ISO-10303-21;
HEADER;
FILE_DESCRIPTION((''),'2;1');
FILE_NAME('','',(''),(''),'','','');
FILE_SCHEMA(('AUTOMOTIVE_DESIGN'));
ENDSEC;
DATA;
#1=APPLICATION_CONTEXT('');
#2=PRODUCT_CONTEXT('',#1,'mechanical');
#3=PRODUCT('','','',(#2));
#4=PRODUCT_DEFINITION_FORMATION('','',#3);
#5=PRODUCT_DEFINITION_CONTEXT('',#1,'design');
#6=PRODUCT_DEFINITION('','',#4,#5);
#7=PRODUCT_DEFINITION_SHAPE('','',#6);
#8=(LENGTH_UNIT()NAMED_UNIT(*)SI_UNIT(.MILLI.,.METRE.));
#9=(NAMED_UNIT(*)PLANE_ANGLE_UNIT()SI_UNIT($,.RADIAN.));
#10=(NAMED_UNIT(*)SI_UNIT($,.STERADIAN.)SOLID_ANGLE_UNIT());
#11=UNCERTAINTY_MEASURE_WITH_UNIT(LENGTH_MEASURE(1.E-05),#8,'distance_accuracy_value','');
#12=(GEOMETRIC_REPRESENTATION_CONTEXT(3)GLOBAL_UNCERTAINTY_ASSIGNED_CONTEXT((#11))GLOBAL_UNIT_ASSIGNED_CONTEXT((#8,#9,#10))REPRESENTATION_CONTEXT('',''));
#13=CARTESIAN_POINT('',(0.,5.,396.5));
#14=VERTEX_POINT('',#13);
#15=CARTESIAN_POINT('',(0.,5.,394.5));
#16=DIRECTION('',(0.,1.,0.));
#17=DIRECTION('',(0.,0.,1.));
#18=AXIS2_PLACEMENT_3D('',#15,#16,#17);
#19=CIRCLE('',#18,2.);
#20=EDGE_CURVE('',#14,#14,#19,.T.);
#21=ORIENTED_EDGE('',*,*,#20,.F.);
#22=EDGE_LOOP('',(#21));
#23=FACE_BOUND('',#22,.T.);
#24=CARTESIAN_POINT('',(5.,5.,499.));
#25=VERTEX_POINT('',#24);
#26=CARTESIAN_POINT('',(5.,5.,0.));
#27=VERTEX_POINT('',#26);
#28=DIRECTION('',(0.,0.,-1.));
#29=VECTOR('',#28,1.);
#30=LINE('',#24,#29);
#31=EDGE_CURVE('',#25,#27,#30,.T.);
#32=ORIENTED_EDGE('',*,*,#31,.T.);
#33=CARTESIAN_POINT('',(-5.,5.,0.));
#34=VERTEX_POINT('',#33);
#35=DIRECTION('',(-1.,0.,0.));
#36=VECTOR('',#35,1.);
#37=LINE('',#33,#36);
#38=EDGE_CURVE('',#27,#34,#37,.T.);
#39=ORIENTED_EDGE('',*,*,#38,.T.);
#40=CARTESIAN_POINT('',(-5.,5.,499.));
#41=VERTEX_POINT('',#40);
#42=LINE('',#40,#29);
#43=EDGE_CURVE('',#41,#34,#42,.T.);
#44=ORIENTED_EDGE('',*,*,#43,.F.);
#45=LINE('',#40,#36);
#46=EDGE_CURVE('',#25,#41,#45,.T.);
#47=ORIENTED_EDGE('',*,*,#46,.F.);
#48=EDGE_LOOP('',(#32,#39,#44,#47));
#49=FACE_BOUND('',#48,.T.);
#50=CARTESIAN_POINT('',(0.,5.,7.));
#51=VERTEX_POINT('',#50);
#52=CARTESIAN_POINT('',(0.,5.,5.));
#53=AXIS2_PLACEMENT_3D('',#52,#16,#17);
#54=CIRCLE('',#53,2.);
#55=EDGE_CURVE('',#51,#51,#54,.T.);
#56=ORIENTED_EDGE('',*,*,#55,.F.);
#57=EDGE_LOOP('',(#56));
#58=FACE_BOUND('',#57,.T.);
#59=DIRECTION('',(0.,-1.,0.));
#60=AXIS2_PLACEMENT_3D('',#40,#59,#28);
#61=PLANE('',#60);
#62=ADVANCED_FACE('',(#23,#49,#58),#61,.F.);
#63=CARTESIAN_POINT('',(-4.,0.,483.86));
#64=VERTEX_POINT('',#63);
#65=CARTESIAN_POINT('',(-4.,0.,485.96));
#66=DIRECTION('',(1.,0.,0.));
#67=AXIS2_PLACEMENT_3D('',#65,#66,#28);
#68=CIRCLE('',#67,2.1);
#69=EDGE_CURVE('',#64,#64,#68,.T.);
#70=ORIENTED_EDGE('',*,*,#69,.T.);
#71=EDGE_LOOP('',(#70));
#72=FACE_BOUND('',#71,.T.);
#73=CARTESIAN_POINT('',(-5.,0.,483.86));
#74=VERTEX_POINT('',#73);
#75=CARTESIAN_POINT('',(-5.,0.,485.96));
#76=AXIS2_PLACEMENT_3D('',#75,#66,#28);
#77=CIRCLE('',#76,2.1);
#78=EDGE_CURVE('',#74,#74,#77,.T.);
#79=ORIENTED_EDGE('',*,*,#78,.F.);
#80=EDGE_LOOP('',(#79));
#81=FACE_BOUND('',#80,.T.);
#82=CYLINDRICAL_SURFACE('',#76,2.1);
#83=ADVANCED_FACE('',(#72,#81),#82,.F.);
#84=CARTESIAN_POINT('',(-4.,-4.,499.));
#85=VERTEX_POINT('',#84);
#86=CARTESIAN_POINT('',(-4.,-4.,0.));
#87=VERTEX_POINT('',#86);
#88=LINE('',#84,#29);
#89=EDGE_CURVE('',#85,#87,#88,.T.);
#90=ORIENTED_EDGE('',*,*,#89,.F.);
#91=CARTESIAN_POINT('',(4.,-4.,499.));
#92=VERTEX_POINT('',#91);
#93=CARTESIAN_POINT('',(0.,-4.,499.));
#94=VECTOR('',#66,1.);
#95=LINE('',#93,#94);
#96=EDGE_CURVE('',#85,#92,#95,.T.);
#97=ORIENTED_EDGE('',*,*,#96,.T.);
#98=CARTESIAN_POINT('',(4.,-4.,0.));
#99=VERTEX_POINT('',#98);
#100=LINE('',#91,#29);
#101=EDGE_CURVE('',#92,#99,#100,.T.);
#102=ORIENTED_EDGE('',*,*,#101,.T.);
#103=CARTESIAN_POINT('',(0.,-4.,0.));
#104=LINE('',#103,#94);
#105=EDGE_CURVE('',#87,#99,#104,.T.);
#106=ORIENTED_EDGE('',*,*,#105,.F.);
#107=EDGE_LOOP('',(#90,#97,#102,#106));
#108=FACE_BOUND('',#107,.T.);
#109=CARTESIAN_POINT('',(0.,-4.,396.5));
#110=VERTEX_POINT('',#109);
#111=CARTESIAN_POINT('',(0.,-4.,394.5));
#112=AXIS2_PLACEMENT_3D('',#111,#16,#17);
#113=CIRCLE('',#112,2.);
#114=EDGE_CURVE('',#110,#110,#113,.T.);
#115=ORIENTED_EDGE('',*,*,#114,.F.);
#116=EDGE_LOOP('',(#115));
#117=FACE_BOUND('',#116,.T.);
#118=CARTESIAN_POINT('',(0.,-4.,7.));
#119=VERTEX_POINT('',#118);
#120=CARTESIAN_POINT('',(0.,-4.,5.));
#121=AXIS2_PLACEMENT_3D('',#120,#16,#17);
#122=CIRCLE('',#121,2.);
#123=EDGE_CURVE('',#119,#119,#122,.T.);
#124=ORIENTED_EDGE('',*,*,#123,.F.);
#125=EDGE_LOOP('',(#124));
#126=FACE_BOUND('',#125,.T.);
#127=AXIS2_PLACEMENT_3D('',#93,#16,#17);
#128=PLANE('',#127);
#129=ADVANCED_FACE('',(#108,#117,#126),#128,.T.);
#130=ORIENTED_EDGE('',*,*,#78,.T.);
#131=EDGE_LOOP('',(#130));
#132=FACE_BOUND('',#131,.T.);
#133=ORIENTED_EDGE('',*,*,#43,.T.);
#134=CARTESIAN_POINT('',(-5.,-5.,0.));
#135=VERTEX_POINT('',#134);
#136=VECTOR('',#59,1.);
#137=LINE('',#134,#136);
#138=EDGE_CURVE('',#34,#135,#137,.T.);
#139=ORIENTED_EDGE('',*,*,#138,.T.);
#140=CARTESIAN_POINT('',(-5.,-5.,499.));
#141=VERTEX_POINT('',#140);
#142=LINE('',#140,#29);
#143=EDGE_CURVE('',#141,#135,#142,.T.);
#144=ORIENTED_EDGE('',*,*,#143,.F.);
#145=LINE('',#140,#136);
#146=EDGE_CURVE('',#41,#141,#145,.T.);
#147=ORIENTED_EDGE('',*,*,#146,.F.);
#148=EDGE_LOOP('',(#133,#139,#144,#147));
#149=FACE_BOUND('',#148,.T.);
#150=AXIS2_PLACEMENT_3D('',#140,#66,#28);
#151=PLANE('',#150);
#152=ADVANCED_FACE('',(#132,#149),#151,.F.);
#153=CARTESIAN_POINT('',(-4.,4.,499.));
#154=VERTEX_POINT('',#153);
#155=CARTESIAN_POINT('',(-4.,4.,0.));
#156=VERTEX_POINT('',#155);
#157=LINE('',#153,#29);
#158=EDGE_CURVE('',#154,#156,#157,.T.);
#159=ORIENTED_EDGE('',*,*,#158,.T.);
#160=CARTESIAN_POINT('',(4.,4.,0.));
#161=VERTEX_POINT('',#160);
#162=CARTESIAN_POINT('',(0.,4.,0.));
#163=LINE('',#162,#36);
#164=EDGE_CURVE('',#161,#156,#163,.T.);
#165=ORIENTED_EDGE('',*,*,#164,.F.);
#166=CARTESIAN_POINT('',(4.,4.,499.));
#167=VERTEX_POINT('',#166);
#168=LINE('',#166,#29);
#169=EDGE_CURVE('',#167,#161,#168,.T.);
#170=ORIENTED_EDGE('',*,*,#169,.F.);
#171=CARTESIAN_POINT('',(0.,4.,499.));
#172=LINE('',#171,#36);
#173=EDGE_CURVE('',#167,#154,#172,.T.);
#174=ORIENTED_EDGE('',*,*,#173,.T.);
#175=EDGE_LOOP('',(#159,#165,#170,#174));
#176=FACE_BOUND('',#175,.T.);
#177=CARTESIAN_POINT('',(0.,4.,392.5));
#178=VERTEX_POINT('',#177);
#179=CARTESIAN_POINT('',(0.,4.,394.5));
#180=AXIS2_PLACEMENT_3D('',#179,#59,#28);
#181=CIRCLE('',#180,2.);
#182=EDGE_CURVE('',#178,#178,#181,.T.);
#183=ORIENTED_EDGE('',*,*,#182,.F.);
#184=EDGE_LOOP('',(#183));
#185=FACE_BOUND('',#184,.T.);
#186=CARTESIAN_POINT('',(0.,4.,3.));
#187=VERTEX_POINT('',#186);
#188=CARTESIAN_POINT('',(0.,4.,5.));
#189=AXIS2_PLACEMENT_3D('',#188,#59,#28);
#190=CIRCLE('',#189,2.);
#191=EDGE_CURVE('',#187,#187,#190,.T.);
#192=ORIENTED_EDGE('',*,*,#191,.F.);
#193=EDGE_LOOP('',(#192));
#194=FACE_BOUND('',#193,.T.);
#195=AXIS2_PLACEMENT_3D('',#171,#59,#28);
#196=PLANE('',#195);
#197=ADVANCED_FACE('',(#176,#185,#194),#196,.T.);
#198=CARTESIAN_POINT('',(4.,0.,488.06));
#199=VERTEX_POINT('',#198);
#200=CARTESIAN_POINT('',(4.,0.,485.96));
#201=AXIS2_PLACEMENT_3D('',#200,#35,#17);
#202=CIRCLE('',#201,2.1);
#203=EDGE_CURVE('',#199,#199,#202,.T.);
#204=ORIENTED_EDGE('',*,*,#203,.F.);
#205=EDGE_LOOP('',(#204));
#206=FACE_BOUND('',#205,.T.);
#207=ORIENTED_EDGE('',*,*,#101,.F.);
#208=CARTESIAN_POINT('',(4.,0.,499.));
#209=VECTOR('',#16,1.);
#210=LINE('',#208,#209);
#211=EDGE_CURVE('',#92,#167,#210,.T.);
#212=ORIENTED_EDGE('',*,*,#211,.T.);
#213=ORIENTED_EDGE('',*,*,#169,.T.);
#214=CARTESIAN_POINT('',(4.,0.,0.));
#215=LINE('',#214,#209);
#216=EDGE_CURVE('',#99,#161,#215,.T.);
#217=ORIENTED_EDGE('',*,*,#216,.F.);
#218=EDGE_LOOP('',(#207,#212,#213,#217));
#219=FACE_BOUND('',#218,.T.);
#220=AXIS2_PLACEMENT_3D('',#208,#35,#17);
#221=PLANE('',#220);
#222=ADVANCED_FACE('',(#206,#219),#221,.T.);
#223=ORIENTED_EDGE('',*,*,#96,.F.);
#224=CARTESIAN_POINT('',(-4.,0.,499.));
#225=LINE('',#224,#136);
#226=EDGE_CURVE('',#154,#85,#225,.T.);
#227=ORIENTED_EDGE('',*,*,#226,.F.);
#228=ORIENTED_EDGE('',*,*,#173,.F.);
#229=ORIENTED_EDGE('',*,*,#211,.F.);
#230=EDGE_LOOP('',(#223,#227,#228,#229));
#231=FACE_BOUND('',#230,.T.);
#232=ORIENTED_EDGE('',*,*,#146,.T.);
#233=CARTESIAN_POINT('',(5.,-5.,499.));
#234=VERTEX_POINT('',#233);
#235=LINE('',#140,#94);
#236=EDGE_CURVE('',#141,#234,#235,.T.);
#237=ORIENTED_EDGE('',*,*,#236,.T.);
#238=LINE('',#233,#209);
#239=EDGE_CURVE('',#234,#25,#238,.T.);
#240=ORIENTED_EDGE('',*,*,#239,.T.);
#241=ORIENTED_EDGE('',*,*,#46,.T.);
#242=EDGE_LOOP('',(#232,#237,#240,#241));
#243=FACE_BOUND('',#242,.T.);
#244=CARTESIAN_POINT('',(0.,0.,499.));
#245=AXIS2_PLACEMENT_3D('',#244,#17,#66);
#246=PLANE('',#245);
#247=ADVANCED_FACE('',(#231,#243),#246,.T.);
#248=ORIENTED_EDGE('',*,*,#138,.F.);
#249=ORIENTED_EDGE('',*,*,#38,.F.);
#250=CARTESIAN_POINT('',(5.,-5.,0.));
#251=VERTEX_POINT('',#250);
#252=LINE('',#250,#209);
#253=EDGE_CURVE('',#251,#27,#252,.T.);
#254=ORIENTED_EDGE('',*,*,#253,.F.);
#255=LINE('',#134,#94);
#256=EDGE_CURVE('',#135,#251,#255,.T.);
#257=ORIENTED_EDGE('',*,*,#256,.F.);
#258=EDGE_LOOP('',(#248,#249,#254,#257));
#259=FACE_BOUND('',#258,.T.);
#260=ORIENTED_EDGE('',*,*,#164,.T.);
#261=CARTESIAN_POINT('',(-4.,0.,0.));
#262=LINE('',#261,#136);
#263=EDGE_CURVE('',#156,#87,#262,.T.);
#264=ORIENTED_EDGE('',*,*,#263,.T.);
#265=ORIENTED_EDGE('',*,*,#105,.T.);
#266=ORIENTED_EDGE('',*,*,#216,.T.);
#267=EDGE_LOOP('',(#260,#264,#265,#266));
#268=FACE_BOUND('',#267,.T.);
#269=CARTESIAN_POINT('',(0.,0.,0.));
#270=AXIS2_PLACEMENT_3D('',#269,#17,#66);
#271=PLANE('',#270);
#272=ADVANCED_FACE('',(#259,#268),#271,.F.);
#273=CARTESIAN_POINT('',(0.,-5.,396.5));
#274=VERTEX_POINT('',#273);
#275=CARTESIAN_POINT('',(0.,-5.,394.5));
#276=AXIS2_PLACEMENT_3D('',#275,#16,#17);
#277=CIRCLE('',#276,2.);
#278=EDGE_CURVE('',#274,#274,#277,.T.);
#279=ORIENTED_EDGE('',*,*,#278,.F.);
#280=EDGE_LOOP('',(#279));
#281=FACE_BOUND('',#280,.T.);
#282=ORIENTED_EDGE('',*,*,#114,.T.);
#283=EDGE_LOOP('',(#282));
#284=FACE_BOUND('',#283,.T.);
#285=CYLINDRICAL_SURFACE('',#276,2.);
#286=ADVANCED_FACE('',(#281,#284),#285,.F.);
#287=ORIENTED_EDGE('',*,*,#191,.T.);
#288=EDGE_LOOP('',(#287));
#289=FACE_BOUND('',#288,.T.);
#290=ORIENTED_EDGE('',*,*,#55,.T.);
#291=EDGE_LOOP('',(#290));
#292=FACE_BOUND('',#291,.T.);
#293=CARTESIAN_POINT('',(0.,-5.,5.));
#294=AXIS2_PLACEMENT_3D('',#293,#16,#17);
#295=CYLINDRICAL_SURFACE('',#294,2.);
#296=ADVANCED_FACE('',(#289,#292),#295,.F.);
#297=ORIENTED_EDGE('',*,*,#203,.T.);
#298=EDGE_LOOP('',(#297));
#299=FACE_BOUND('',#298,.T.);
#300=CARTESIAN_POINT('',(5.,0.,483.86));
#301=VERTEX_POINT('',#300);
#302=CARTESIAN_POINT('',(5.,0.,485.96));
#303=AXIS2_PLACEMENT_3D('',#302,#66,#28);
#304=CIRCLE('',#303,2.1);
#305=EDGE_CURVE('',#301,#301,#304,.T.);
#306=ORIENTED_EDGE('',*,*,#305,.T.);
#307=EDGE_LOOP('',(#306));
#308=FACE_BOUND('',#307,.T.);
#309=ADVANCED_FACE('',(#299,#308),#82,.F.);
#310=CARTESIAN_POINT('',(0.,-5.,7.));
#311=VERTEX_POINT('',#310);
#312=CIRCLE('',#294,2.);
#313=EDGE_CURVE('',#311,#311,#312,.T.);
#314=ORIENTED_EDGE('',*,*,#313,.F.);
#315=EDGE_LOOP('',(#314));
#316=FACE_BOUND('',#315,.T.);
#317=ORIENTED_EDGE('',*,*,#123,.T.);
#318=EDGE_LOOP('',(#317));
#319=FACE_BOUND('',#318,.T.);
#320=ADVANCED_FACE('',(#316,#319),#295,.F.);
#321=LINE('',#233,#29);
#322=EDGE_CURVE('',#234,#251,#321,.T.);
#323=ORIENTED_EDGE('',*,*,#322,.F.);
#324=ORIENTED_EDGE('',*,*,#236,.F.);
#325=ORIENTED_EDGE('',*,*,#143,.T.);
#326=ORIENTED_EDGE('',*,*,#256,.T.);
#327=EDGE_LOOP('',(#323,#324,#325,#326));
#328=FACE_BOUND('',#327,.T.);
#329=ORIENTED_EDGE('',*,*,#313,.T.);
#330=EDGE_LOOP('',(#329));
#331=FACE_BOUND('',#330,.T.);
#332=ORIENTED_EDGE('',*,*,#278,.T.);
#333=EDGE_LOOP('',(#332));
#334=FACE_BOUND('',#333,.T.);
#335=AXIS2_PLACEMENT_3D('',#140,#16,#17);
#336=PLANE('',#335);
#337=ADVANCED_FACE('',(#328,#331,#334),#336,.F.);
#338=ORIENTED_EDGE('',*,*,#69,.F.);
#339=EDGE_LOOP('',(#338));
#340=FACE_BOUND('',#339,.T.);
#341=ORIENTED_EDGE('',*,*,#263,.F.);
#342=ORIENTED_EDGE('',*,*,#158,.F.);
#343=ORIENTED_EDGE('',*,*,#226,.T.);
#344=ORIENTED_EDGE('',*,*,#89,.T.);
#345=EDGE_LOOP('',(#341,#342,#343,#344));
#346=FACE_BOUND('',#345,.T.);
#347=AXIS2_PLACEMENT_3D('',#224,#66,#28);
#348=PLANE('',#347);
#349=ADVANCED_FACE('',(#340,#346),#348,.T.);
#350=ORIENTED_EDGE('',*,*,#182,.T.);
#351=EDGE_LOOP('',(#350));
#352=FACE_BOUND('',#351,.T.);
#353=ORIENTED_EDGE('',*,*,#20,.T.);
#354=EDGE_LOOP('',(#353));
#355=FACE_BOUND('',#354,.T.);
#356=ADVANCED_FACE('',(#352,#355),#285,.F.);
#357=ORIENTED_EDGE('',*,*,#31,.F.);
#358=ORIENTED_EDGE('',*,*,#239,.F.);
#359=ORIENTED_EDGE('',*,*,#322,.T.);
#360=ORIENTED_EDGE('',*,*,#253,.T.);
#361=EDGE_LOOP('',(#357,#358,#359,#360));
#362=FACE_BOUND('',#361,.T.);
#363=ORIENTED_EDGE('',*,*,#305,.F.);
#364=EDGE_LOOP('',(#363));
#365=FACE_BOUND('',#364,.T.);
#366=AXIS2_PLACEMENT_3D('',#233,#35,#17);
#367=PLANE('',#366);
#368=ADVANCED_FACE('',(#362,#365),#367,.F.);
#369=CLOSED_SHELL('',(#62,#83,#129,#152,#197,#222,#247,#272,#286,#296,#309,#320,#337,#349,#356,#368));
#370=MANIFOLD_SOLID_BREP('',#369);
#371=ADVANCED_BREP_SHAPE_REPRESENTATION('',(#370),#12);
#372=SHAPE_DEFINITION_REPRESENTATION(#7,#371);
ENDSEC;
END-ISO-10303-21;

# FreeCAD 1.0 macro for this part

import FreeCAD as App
import Part
import Sketcher
Q = App.Units.Quantity


def add_polygon(sketch, points):
    """Adds a closed chain of lines whose ends are joined by coincident constraints."""
    first, n = sketch.GeometryCount, len(points)
    for a, b in zip(points, points[1:] + points[:1]):
        sketch.addGeometry(Part.LineSegment(App.Vector(*a, 0), App.Vector(*b, 0)), False)
    for i in range(n):
        sketch.addConstraint(Sketcher.Constraint("Coincident", first + i, 2, first + (i + 1) % n, 1))

doc = App.newDocument("Part")
body = doc.addObject("PartDesign::Body", "Body")

# Sketch on XY plane
sketch1 = doc.addObject("Sketcher::SketchObject", "Sketch")
body.addObject(sketch1)
sketch1.AttachmentSupport = (doc.XY_Plane, [""])
sketch1.MapMode = "FlatFace"
add_polygon(sketch1, [(-5, 5), (-5, -5), (5, -5), (5, 5)])  # lines 0-3
add_polygon(sketch1, [(4, -4), (-4, -4), (-4, 4), (4, 4)])  # lines 4-7
sketch1.addConstraint(Sketcher.Constraint("Vertical", 0))
sketch1.addConstraint(Sketcher.Constraint("Horizontal", 1))
sketch1.addConstraint(Sketcher.Constraint("Vertical", 2))
sketch1.addConstraint(Sketcher.Constraint("Horizontal", 3))
sketch1.addConstraint(Sketcher.Constraint("Horizontal", 4))
sketch1.addConstraint(Sketcher.Constraint("Vertical", 5))
sketch1.addConstraint(Sketcher.Constraint("Horizontal", 6))
sketch1.addConstraint(Sketcher.Constraint("Vertical", 7))
sketch1.addConstraint(Sketcher.Constraint("Symmetric", 0, 2, 2, 2, -1, 1))
sketch1.addConstraint(Sketcher.Constraint("Symmetric", 4, 2, 6, 2, -1, 1))
sketch1.addConstraint(Sketcher.Constraint("Equal", 3, 0))
sketch1.addConstraint(Sketcher.Constraint("Equal", 6, 5))
sketch1.addConstraint(Sketcher.Constraint("DistanceX", 1, 1, 1, 2, Q("10 mm")))
sketch1.addConstraint(Sketcher.Constraint("DistanceX", 4, 2, 4, 1, Q("8 mm")))
pad1 = doc.addObject("PartDesign::Pad", "Pad")
body.addObject(pad1)
pad1.Profile = sketch1
pad1.Length = 499

# Sketch on XZ plane
sketch2 = doc.addObject("Sketcher::SketchObject", "Sketch001")
body.addObject(sketch2)
sketch2.AttachmentSupport = (doc.XZ_Plane, [""])
sketch2.MapMode = "FlatFace"
sketch2.AttachmentOffset = App.Placement(App.Vector(0, 0, -5), App.Rotation())
sketch2.addGeometry(Part.Circle(App.Vector(0, 5, 0), App.Vector(0, 0, 1), 2), False)
sketch2.addGeometry(Part.Circle(App.Vector(0, 394.5, 0), App.Vector(0, 0, 1), 2), False)
sketch2.addConstraint(Sketcher.Constraint("Equal", 0, 1))
sketch2.addConstraint(Sketcher.Constraint("PointOnObject", 0, 3, -2))
sketch2.addConstraint(Sketcher.Constraint("PointOnObject", 1, 3, -2))
sketch2.addConstraint(Sketcher.Constraint("Diameter", 0, Q("4 mm")))
sketch2.addConstraint(Sketcher.Constraint("DistanceY", -1, 1, 0, 3, Q("5 mm")))
sketch2.addConstraint(Sketcher.Constraint("DistanceY", -1, 1, 1, 3, Q("394.5 mm")))
pocket1 = doc.addObject("PartDesign::Pocket", "Pocket")
body.addObject(pocket1)
pocket1.Profile = sketch2
pocket1.Type = "ThroughAll"
pocket1.Reversed = True

# Sketch on YZ plane
sketch3 = doc.addObject("Sketcher::SketchObject", "Sketch002")
body.addObject(sketch3)
sketch3.AttachmentSupport = (doc.YZ_Plane, [""])
sketch3.MapMode = "FlatFace"
sketch3.AttachmentOffset = App.Placement(App.Vector(0, 0, 5), App.Rotation())
sketch3.addGeometry(Part.Circle(App.Vector(0, 485.96, 0), App.Vector(0, 0, 1), 2.1), False)
sketch3.addConstraint(Sketcher.Constraint("PointOnObject", 0, 3, -2))
sketch3.addConstraint(Sketcher.Constraint("Diameter", 0, Q("4.2 mm")))
sketch3.addConstraint(Sketcher.Constraint("DistanceY", -1, 1, 0, 3, Q("485.96 mm")))
pocket2 = doc.addObject("PartDesign::Pocket", "Pocket001")
body.addObject(pocket2)
pocket2.Profile = sketch3
pocket2.Type = "ThroughAll"

doc.recompute()
